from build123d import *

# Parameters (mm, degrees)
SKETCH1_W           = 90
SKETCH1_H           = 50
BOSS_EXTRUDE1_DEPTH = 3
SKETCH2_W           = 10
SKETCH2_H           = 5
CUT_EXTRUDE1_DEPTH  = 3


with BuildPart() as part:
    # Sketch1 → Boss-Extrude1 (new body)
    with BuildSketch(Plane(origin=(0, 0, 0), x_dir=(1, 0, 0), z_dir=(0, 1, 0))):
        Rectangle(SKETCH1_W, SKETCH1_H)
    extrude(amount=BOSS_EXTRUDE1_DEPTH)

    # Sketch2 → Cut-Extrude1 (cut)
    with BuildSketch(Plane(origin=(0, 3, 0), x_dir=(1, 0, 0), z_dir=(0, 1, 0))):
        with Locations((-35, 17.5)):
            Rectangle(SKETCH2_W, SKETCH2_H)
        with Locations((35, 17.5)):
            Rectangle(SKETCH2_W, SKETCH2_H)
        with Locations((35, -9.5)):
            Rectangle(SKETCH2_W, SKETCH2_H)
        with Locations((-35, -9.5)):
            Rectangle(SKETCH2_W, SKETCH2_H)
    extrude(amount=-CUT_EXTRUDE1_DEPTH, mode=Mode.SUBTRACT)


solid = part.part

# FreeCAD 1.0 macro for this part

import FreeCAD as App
import Part
import Sketcher

V = App.Vector

doc = App.newDocument("Part")
body = doc.addObject("PartDesign::Body", "Body")

# Sketch on XZ plane
sketch1 = doc.addObject("Sketcher::SketchObject", "Sketch")
body.addObject(sketch1)
sketch1.AttachmentSupport = (doc.XZ_Plane, [""])
sketch1.MapMode = "FlatFace"
sketch1.addGeometry([
    Part.LineSegment(V(-45, -25, 0), V(-45, 25, 0)),
    Part.LineSegment(V(-45, 25, 0), V(45, 25, 0)),
    Part.LineSegment(V(45, 25, 0), V(45, -25, 0)),
    Part.LineSegment(V(45, -25, 0), V(-45, -25, 0)),
], False)
sketch1.addConstraint([
    Sketcher.Constraint("Coincident", 0, 2, 1, 1),
    Sketcher.Constraint("Coincident", 1, 2, 2, 1),
    Sketcher.Constraint("Coincident", 2, 2, 3, 1),
    Sketcher.Constraint("Coincident", 3, 2, 0, 1),
    Sketcher.Constraint("Vertical", 0),
    Sketcher.Constraint("Horizontal", 1),
    Sketcher.Constraint("Vertical", 2),
    Sketcher.Constraint("Horizontal", 3),
    Sketcher.Constraint("Symmetric", 0, 2, 2, 2, -1, 1),
    Sketcher.Constraint("DistanceX", 1, 1, 1, 2, 90.0),
    Sketcher.Constraint("DistanceY", 0, 1, 0, 2, 50.0),
])
pad1 = doc.addObject("PartDesign::Pad", "Pad")
body.addObject(pad1)
pad1.Profile = sketch1
pad1.Length = 3
pad1.Reversed = True

# Sketch on XZ plane
sketch2 = doc.addObject("Sketcher::SketchObject", "Sketch001")
body.addObject(sketch2)
sketch2.AttachmentSupport = (doc.XZ_Plane, [""])
sketch2.MapMode = "FlatFace"
sketch2.AttachmentOffset = App.Placement(V(0, 0, -3), App.Rotation())
sketch2.addGeometry([
    Part.LineSegment(V(-40, -20, 0), V(-40, -15, 0)),  # 0
    Part.LineSegment(V(-40, -15, 0), V(-30, -15, 0)),  # 1
    Part.LineSegment(V(-30, -15, 0), V(-30, -20, 0)),  # 2
    Part.LineSegment(V(-30, -20, 0), V(-40, -20, 0)),  # 3
    Part.LineSegment(V(30, -20, 0), V(30, -15, 0)),  # 4
    Part.LineSegment(V(30, -15, 0), V(40, -15, 0)),  # 5
    Part.LineSegment(V(40, -15, 0), V(40, -20, 0)),  # 6
    Part.LineSegment(V(40, -20, 0), V(30, -20, 0)),  # 7
    Part.LineSegment(V(30, 7, 0), V(30, 12, 0)),  # 8
    Part.LineSegment(V(30, 12, 0), V(40, 12, 0)),  # 9
    Part.LineSegment(V(40, 12, 0), V(40, 7, 0)),  # 10
    Part.LineSegment(V(40, 7, 0), V(30, 7, 0)),  # 11
    Part.LineSegment(V(-40, 7, 0), V(-40, 12, 0)),  # 12
    Part.LineSegment(V(-40, 12, 0), V(-30, 12, 0)),  # 13
    Part.LineSegment(V(-30, 12, 0), V(-30, 7, 0)),  # 14
    Part.LineSegment(V(-30, 7, 0), V(-40, 7, 0)),  # 15
], False)
sketch2.addConstraint([
    Sketcher.Constraint("Coincident", 0, 2, 1, 1),
    Sketcher.Constraint("Coincident", 1, 2, 2, 1),
    Sketcher.Constraint("Coincident", 2, 2, 3, 1),
    Sketcher.Constraint("Coincident", 3, 2, 0, 1),
    Sketcher.Constraint("Coincident", 4, 2, 5, 1),
    Sketcher.Constraint("Coincident", 5, 2, 6, 1),
    Sketcher.Constraint("Coincident", 6, 2, 7, 1),
    Sketcher.Constraint("Coincident", 7, 2, 4, 1),
    Sketcher.Constraint("Coincident", 8, 2, 9, 1),
    Sketcher.Constraint("Coincident", 9, 2, 10, 1),
    Sketcher.Constraint("Coincident", 10, 2, 11, 1),
    Sketcher.Constraint("Coincident", 11, 2, 8, 1),
    Sketcher.Constraint("Coincident", 12, 2, 13, 1),
    Sketcher.Constraint("Coincident", 13, 2, 14, 1),
    Sketcher.Constraint("Coincident", 14, 2, 15, 1),
    Sketcher.Constraint("Coincident", 15, 2, 12, 1),
    Sketcher.Constraint("Vertical", 0),
    Sketcher.Constraint("Horizontal", 1),
    Sketcher.Constraint("Vertical", 2),
    Sketcher.Constraint("Horizontal", 3),
    Sketcher.Constraint("Vertical", 4),
    Sketcher.Constraint("Horizontal", 5),
    Sketcher.Constraint("Vertical", 6),
    Sketcher.Constraint("Horizontal", 7),
    Sketcher.Constraint("Vertical", 8),
    Sketcher.Constraint("Horizontal", 9),
    Sketcher.Constraint("Vertical", 10),
    Sketcher.Constraint("Horizontal", 11),
    Sketcher.Constraint("Vertical", 12),
    Sketcher.Constraint("Horizontal", 13),
    Sketcher.Constraint("Vertical", 14),
    Sketcher.Constraint("Horizontal", 15),
    Sketcher.Constraint("Symmetric", 1, 2, 4, 2, -2),
    Sketcher.Constraint("Symmetric", 3, 2, 6, 2, -2),
    Sketcher.Constraint("Symmetric", 9, 2, 12, 2, -2),
    Sketcher.Constraint("Symmetric", 11, 2, 14, 2, -2),
    Sketcher.Constraint("Vertical", 7, 2, 8, 2),
    Sketcher.Constraint("Vertical", 6, 2, 9, 2),
    Sketcher.Constraint("Equal", 6, 8),
    Sketcher.Constraint("DistanceX", 1, 1, 1, 2, 10.0),
    Sketcher.Constraint("DistanceY", 0, 1, 0, 2, 5.0),
    Sketcher.Constraint("DistanceX", 0, 2, -1, 1, 40.0),
    Sketcher.Constraint("DistanceY", 0, 2, -1, 1, 15.0),
    Sketcher.Constraint("DistanceY", -1, 1, 8, 2, 12.0),
])
pocket1 = doc.addObject("PartDesign::Pocket", "Pocket")
body.addObject(pocket1)
pocket1.Profile = sketch2
pocket1.Length = 3
pocket1.Reversed = True

doc.recompute()
